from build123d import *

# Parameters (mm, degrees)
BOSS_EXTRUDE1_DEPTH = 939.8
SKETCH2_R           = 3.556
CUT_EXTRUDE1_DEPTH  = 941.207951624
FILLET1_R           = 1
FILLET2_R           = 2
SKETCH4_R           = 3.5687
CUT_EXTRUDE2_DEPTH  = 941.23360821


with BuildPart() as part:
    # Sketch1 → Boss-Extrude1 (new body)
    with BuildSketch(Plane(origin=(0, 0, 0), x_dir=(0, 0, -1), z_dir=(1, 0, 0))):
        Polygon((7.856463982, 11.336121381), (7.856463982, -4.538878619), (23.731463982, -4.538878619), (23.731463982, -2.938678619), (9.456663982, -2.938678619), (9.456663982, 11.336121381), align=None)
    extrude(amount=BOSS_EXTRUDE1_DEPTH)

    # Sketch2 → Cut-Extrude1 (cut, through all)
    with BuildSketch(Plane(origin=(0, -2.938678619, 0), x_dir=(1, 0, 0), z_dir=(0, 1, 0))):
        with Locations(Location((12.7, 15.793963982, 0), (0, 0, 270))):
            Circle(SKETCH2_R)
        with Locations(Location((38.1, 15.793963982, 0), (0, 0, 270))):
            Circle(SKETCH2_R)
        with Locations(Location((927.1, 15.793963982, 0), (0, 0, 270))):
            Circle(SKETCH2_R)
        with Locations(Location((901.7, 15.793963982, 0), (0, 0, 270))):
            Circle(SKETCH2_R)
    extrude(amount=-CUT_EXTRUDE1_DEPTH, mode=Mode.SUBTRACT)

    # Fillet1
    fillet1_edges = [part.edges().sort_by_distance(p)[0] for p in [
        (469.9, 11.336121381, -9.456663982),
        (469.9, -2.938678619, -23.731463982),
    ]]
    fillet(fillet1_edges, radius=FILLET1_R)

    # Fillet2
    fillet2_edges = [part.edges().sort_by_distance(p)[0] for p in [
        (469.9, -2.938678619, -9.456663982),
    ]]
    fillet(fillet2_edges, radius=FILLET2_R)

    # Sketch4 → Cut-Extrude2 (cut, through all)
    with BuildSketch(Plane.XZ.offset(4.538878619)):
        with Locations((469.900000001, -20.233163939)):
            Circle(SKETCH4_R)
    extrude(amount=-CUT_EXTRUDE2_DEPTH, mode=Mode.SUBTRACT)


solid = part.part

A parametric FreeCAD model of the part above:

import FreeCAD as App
import Part
import Sketcher
Q = App.Units.Quantity


def edges_at(feature, points):
    """Names of the edges that pass closest to the given points."""
    edges = feature.Shape.Edges
    near = lambda p: min(range(len(edges)), key=lambda i: edges[i].distToShape(Part.Vertex(*p))[0])
    return sorted({f"Edge{near(p) + 1}" for p in points})

doc = App.newDocument("Part")
params = doc.addObject("Spreadsheet::Sheet", "Params")
for row, (alias, value) in enumerate([
    ("sketch1_width", "0.625 in"),
    ("sketch1_width2", "0.063 in"),
    ("pad1_length", "37 in"),
    ("sketch2_diameter", "0.28 in"),
    ("fillet_radius", "1 mm"),
    ("fillet2_radius", "2 mm"),
    ("sketch3_diameter", "0.281 in"),
], start=1):
    params.set(f"A{row}", alias)
    params.set(f"B{row}", "=" + value)
    params.setAlias(f"B{row}", alias)

body = doc.addObject("PartDesign::Body", "Body")

# Sketch on YZ plane
sketch1 = body.newObject("Sketcher::SketchObject", "Sketch")
sketch1.AttachmentSupport = (doc.getObject("YZ_Plane"), [""])
sketch1.MapMode = "FlatFace"
sketch1.addGeometry([
    Part.LineSegment(App.Vector(11.3, -7.9, 0), App.Vector(-4.5, -7.9, 0)),  # 0
    Part.LineSegment(App.Vector(-4.5, -7.9, 0), App.Vector(-4.5, -23.7, 0)),  # 1
    Part.LineSegment(App.Vector(-4.5, -23.7, 0), App.Vector(-2.9, -23.7, 0)),  # 2
    Part.LineSegment(App.Vector(-2.9, -23.7, 0), App.Vector(-2.9, -9.5, 0)),  # 3
    Part.LineSegment(App.Vector(-2.9, -9.5, 0), App.Vector(11.3, -9.5, 0)),  # 4
    Part.LineSegment(App.Vector(11.3, -9.5, 0), App.Vector(11.3, -7.9, 0)),  # 5
], False)
sketch1.addConstraint([
    Sketcher.Constraint("Coincident", 0, 2, 1, 1),
    Sketcher.Constraint("Coincident", 1, 2, 2, 1),
    Sketcher.Constraint("Coincident", 2, 2, 3, 1),
    Sketcher.Constraint("Coincident", 3, 2, 4, 1),
    Sketcher.Constraint("Coincident", 4, 2, 5, 1),
    Sketcher.Constraint("Coincident", 5, 2, 0, 1),
    Sketcher.Constraint("Horizontal", 0),
    Sketcher.Constraint("Vertical", 1),
    Sketcher.Constraint("Horizontal", 2),
    Sketcher.Constraint("Vertical", 3),
    Sketcher.Constraint("Horizontal", 4),
    Sketcher.Constraint("Vertical", 5),
    Sketcher.Constraint("Equal", 0, 1),
    Sketcher.Constraint("Equal", 4, 3),
    Sketcher.Constraint("DistanceX", 0, 2, 0, 1, Q("0.625 in")),
    Sketcher.Constraint("DistanceX", 2, 1, 2, 2, Q("0.063 in")),
    Sketcher.Constraint("DistanceX", 0, 2, -1, 1, Q("4.538879 mm")),
    Sketcher.Constraint("DistanceY", 0, 2, -1, 1, Q("7.856464 mm")),
])
sketch1.setExpression("Constraints[14]", "Params.sketch1_width")
sketch1.setExpression("Constraints[15]", "Params.sketch1_width2")
pad1 = body.newObject("PartDesign::Pad", "Pad")
pad1.Profile = sketch1
pad1.setExpression("Length", "Params.pad1_length")

# Sketch on XZ plane
sketch2 = body.newObject("Sketcher::SketchObject", "Sketch001")
sketch2.AttachmentSupport = (doc.getObject("XZ_Plane"), [""])
sketch2.MapMode = "FlatFace"
sketch2.AttachmentOffset = App.Placement(App.Vector(0, 0, 2.938679), App.Rotation())
sketch2.addGeometry([
    Part.Circle(App.Vector(12.7, -15.8, 0), App.Vector(0, 0, 1), 3.6),
    Part.Circle(App.Vector(38.1, -15.8, 0), App.Vector(0, 0, 1), 3.6),
    Part.Circle(App.Vector(927.1, -15.8, 0), App.Vector(0, 0, 1), 3.6),
    Part.Circle(App.Vector(901.7, -15.8, 0), App.Vector(0, 0, 1), 3.6),
], False)
sketch2.addConstraint([
    Sketcher.Constraint("Equal", 0, 1),
    Sketcher.Constraint("Equal", 1, 2),
    Sketcher.Constraint("Equal", 2, 3),
    Sketcher.Constraint("Horizontal", 0, 3, 1, 3),
    Sketcher.Constraint("Horizontal", 1, 3, 2, 3),
    Sketcher.Constraint("Horizontal", 2, 3, 3, 3),
    Sketcher.Constraint("Diameter", 0, Q("0.28 in")),
    Sketcher.Constraint("DistanceX", 0, 3, 1, 3, Q("1 in")),
    Sketcher.Constraint("DistanceX", 1, 3, 2, 3, Q("35 in")),
    Sketcher.Constraint("DistanceX", 3, 3, 2, 3, Q("1 in")),
    Sketcher.Constraint("DistanceX", -1, 1, 0, 3, Q("0.5 in")),
    Sketcher.Constraint("DistanceY", 0, 3, -1, 1, Q("15.793964 mm")),
])
sketch2.setExpression("Constraints[6]", "Params.sketch2_diameter")
pocket1 = body.newObject("PartDesign::Pocket", "Pocket")
pocket1.Profile = sketch2
pocket1.Type = "ThroughAll"
pocket1.Reversed = True
doc.recompute()

fillet = body.newObject("PartDesign::Fillet", "Fillet")
fillet.Base = (pocket1, edges_at(pocket1, [(469.9, 11.336, -9.457), (469.9, -2.939, -23.731)]))
fillet.setExpression("Radius", "Params.fillet_radius")
doc.recompute()

fillet2 = body.newObject("PartDesign::Fillet", "Fillet001")
fillet2.Base = (fillet, edges_at(fillet, [(469.9, -2.939, -9.457)]))
fillet2.setExpression("Radius", "Params.fillet2_radius")

# Sketch on XZ plane
sketch3 = body.newObject("Sketcher::SketchObject", "Sketch002")
sketch3.AttachmentSupport = (doc.getObject("XZ_Plane"), [""])
sketch3.MapMode = "FlatFace"
sketch3.AttachmentOffset = App.Placement(App.Vector(0, 0, 4.538879), App.Rotation())
sketch3.addGeometry(Part.Circle(App.Vector(469.9, -20.2, 0), App.Vector(0, 0, 1), 3.6), False)
sketch3.addConstraint([
    Sketcher.Constraint("Diameter", 0, Q("0.281 in")),
    Sketcher.Constraint("DistanceX", -1, 1, 0, 3, Q("18.5 in")),
    Sketcher.Constraint("DistanceY", 0, 3, -1, 1, Q("20.233164 mm")),
])
sketch3.setExpression("Constraints[0]", "Params.sketch3_diameter")
pocket2 = body.newObject("PartDesign::Pocket", "Pocket001")
pocket2.Profile = sketch3
pocket2.Type = "ThroughAll"

doc.recompute()
